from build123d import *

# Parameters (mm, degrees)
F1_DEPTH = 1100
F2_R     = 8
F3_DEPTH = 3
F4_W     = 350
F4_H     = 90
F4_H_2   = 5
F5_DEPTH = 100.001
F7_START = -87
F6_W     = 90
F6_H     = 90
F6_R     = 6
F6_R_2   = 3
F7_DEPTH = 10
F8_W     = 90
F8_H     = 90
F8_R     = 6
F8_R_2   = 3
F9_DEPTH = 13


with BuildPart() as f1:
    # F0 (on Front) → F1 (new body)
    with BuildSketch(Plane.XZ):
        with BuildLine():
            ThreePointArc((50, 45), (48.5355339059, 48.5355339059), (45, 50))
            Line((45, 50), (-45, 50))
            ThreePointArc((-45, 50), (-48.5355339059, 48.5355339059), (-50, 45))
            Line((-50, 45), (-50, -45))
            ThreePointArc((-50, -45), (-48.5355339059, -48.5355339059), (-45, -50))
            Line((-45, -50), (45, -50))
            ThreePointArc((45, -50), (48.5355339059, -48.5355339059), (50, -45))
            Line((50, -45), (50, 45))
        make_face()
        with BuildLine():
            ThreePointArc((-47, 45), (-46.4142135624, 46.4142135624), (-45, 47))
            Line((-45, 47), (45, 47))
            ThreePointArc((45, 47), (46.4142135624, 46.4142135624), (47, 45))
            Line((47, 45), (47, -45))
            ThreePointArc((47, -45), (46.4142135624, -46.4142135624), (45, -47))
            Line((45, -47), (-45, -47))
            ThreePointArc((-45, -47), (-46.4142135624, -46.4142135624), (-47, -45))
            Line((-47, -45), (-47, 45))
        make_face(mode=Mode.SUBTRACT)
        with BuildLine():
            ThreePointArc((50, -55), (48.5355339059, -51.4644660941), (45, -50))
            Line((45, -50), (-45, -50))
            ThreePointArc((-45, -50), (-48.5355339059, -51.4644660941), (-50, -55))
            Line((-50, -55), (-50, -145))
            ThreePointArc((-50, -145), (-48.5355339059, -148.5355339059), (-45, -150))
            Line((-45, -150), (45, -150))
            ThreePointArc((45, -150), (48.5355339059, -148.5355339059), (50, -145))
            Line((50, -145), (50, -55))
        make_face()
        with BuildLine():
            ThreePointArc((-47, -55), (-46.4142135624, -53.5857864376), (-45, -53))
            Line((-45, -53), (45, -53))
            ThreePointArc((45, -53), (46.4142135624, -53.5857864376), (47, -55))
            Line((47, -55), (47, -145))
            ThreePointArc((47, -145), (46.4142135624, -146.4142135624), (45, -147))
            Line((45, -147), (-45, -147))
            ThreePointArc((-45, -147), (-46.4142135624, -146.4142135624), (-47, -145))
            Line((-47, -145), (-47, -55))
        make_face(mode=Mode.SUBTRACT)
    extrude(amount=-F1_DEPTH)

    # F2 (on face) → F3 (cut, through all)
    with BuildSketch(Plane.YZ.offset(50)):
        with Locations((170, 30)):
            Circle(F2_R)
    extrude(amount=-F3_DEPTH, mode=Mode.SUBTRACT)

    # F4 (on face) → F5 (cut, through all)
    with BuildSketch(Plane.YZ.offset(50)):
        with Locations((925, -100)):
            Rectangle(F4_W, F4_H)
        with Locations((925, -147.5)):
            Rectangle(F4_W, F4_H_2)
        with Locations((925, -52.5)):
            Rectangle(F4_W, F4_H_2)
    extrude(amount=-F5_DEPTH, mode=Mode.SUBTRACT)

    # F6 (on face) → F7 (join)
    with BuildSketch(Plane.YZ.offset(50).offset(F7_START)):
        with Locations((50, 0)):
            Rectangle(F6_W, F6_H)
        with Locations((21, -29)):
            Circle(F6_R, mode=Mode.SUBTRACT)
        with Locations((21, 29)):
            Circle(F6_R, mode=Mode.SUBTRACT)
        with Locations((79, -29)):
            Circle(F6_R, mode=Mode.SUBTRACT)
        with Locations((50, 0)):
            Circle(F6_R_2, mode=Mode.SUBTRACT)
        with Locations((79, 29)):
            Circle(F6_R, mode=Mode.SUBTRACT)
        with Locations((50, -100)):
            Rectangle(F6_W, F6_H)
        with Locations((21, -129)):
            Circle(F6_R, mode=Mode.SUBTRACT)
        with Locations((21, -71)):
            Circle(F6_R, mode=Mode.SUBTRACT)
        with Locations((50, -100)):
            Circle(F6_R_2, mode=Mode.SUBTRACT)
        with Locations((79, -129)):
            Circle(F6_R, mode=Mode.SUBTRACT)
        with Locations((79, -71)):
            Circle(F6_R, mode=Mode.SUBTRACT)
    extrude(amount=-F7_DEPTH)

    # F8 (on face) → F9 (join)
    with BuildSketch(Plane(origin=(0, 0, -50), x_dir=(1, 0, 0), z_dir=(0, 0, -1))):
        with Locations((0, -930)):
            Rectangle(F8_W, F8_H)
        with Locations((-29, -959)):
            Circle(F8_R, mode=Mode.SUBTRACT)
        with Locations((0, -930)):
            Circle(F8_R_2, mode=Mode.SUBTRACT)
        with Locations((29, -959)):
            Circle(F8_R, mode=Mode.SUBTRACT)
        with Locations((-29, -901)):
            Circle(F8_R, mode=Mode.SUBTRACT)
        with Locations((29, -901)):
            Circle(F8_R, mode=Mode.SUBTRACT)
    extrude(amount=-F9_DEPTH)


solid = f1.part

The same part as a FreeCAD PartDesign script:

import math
import FreeCAD as App
import Part
import Sketcher
Q = App.Units.Quantity

doc = App.newDocument("Part")
body = doc.addObject("PartDesign::Body", "Body")

# Sketch on XZ plane
sketch1 = body.newObject("Sketcher::SketchObject", "Sketch")
sketch1.AttachmentSupport = (doc.getObject("XZ_Plane"), [""])
sketch1.MapMode = "FlatFace"
sketch1.addGeometry(Part.ArcOfCircle(Part.Circle(App.Vector(45, 45, 0), App.Vector(0, 0, 1), 5), math.radians(0), math.radians(90)), False)
sketch1.addGeometry(Part.LineSegment(App.Vector(45, 50, 0), App.Vector(-45, 50, 0)), False)
sketch1.addGeometry(Part.ArcOfCircle(Part.Circle(App.Vector(-45, 45, 0), App.Vector(0, 0, 1), 5), math.radians(90), math.radians(180)), False)
sketch1.addGeometry(Part.LineSegment(App.Vector(-50, 45, 0), App.Vector(-50, -45, 0)), False)
sketch1.addGeometry(Part.ArcOfCircle(Part.Circle(App.Vector(-45, -45, 0), App.Vector(0, 0, 1), 5), math.radians(180), math.radians(270)), False)
sketch1.addGeometry(Part.ArcOfCircle(Part.Circle(App.Vector(-45, -55, 0), App.Vector(0, 0, 1), 5), math.radians(90), math.radians(180)), False)
sketch1.addGeometry(Part.LineSegment(App.Vector(-50, -55, 0), App.Vector(-50, -145, 0)), False)
sketch1.addGeometry(Part.ArcOfCircle(Part.Circle(App.Vector(-45, -145, 0), App.Vector(0, 0, 1), 5), math.radians(180), math.radians(270)), False)
sketch1.addGeometry(Part.LineSegment(App.Vector(-45, -150, 0), App.Vector(45, -150, 0)), False)
sketch1.addGeometry(Part.ArcOfCircle(Part.Circle(App.Vector(45, -145, 0), App.Vector(0, 0, 1), 5), math.radians(-90), math.radians(0)), False)
sketch1.addGeometry(Part.LineSegment(App.Vector(50, -145, 0), App.Vector(50, -55, 0)), False)
sketch1.addGeometry(Part.ArcOfCircle(Part.Circle(App.Vector(45, -55, 0), App.Vector(0, 0, 1), 5), math.radians(0), math.radians(90)), False)
sketch1.addGeometry(Part.ArcOfCircle(Part.Circle(App.Vector(45, -45, 0), App.Vector(0, 0, 1), 5), math.radians(-90), math.radians(0)), False)
sketch1.addGeometry(Part.LineSegment(App.Vector(50, -45, 0), App.Vector(50, 45, 0)), False)
sketch1.addGeometry(Part.LineSegment(App.Vector(-47, -145, 0), App.Vector(-47, -55, 0)), False)
sketch1.addGeometry(Part.ArcOfCircle(Part.Circle(App.Vector(-45, -55, 0), App.Vector(0, 0, 1), 2), math.radians(90), math.radians(180)), False)
sketch1.addGeometry(Part.LineSegment(App.Vector(-45, -53, 0), App.Vector(45, -53, 0)), False)
sketch1.addGeometry(Part.ArcOfCircle(Part.Circle(App.Vector(45, -55, 0), App.Vector(0, 0, 1), 2), math.radians(0), math.radians(90)), False)
sketch1.addGeometry(Part.LineSegment(App.Vector(47, -55, 0), App.Vector(47, -145, 0)), False)
sketch1.addGeometry(Part.ArcOfCircle(Part.Circle(App.Vector(45, -145, 0), App.Vector(0, 0, 1), 2), math.radians(-90), math.radians(0)), False)
sketch1.addGeometry(Part.LineSegment(App.Vector(45, -147, 0), App.Vector(-45, -147, 0)), False)
sketch1.addGeometry(Part.ArcOfCircle(Part.Circle(App.Vector(-45, -145, 0), App.Vector(0, 0, 1), 2), math.radians(180), math.radians(270)), False)
sketch1.addGeometry(Part.LineSegment(App.Vector(-47, -45, 0), App.Vector(-47, 45, 0)), False)
sketch1.addGeometry(Part.ArcOfCircle(Part.Circle(App.Vector(-45, 45, 0), App.Vector(0, 0, 1), 2), math.radians(90), math.radians(180)), False)
sketch1.addGeometry(Part.LineSegment(App.Vector(-45, 47, 0), App.Vector(45, 47, 0)), False)
sketch1.addGeometry(Part.ArcOfCircle(Part.Circle(App.Vector(45, 45, 0), App.Vector(0, 0, 1), 2), math.radians(0), math.radians(90)), False)
sketch1.addGeometry(Part.LineSegment(App.Vector(47, 45, 0), App.Vector(47, -45, 0)), False)
sketch1.addGeometry(Part.ArcOfCircle(Part.Circle(App.Vector(45, -45, 0), App.Vector(0, 0, 1), 2), math.radians(-90), math.radians(0)), False)
sketch1.addGeometry(Part.LineSegment(App.Vector(45, -47, 0), App.Vector(-45, -47, 0)), False)
sketch1.addGeometry(Part.ArcOfCircle(Part.Circle(App.Vector(-45, -45, 0), App.Vector(0, 0, 1), 2), math.radians(180), math.radians(270)), False)
sketch1.addConstraint(Sketcher.Constraint("Tangent", 0, 2, 1, 1))
sketch1.addConstraint(Sketcher.Constraint("Tangent", 1, 2, 2, 1))
sketch1.addConstraint(Sketcher.Constraint("Tangent", 2, 2, 3, 1))
sketch1.addConstraint(Sketcher.Constraint("Tangent", 3, 2, 4, 1))
sketch1.addConstraint(Sketcher.Constraint("Tangent", 4, 2, 5, 1))
sketch1.addConstraint(Sketcher.Constraint("Tangent", 5, 2, 6, 1))
sketch1.addConstraint(Sketcher.Constraint("Tangent", 6, 2, 7, 1))
sketch1.addConstraint(Sketcher.Constraint("Tangent", 7, 2, 8, 1))
sketch1.addConstraint(Sketcher.Constraint("Tangent", 8, 2, 9, 1))
sketch1.addConstraint(Sketcher.Constraint("Tangent", 9, 2, 10, 1))
sketch1.addConstraint(Sketcher.Constraint("Tangent", 10, 2, 11, 1))
sketch1.addConstraint(Sketcher.Constraint("Tangent", 11, 2, 12, 1))
sketch1.addConstraint(Sketcher.Constraint("Tangent", 12, 2, 13, 1))
sketch1.addConstraint(Sketcher.Constraint("Tangent", 13, 2, 0, 1))
sketch1.addConstraint(Sketcher.Constraint("Tangent", 14, 2, 15, 2))
sketch1.addConstraint(Sketcher.Constraint("Tangent", 15, 1, 16, 1))
sketch1.addConstraint(Sketcher.Constraint("Tangent", 16, 2, 17, 2))
sketch1.addConstraint(Sketcher.Constraint("Tangent", 17, 1, 18, 1))
sketch1.addConstraint(Sketcher.Constraint("Tangent", 18, 2, 19, 2))
sketch1.addConstraint(Sketcher.Constraint("Tangent", 19, 1, 20, 1))
sketch1.addConstraint(Sketcher.Constraint("Tangent", 20, 2, 21, 2))
sketch1.addConstraint(Sketcher.Constraint("Tangent", 21, 1, 14, 1))
sketch1.addConstraint(Sketcher.Constraint("Tangent", 22, 2, 23, 2))
sketch1.addConstraint(Sketcher.Constraint("Tangent", 23, 1, 24, 1))
sketch1.addConstraint(Sketcher.Constraint("Tangent", 24, 2, 25, 2))
sketch1.addConstraint(Sketcher.Constraint("Tangent", 25, 1, 26, 1))
sketch1.addConstraint(Sketcher.Constraint("Tangent", 26, 2, 27, 2))
sketch1.addConstraint(Sketcher.Constraint("Tangent", 27, 1, 28, 1))
sketch1.addConstraint(Sketcher.Constraint("Tangent", 28, 2, 29, 2))
sketch1.addConstraint(Sketcher.Constraint("Tangent", 29, 1, 22, 1))
sketch1.addConstraint(Sketcher.Constraint("Horizontal", 1))
sketch1.addConstraint(Sketcher.Constraint("Vertical", 3))
sketch1.addConstraint(Sketcher.Constraint("Vertical", 6))
sketch1.addConstraint(Sketcher.Constraint("Horizontal", 8))
sketch1.addConstraint(Sketcher.Constraint("Vertical", 10))
sketch1.addConstraint(Sketcher.Constraint("Vertical", 13))
sketch1.addConstraint(Sketcher.Constraint("Vertical", 14))
sketch1.addConstraint(Sketcher.Constraint("Horizontal", 16))
sketch1.addConstraint(Sketcher.Constraint("Vertical", 18))
sketch1.addConstraint(Sketcher.Constraint("Horizontal", 20))
sketch1.addConstraint(Sketcher.Constraint("Vertical", 22))
sketch1.addConstraint(Sketcher.Constraint("Horizontal", 24))
sketch1.addConstraint(Sketcher.Constraint("Vertical", 26))
sketch1.addConstraint(Sketcher.Constraint("Horizontal", 28))
sketch1.addConstraint(Sketcher.Constraint("Coincident", 15, 3, 5, 3))
sketch1.addConstraint(Sketcher.Constraint("Coincident", 17, 3, 11, 3))
sketch1.addConstraint(Sketcher.Constraint("Coincident", 19, 3, 9, 3))
sketch1.addConstraint(Sketcher.Constraint("Coincident", 21, 3, 7, 3))
sketch1.addConstraint(Sketcher.Constraint("Coincident", 23, 3, 2, 3))
sketch1.addConstraint(Sketcher.Constraint("Coincident", 25, 3, 0, 3))
sketch1.addConstraint(Sketcher.Constraint("Coincident", 27, 3, 12, 3))
sketch1.addConstraint(Sketcher.Constraint("Equal", 0, 2))
sketch1.addConstraint(Sketcher.Constraint("Equal", 2, 4))
sketch1.addConstraint(Sketcher.Constraint("Equal", 4, 5))
sketch1.addConstraint(Sketcher.Constraint("Equal", 5, 7))
sketch1.addConstraint(Sketcher.Constraint("Equal", 7, 9))
sketch1.addConstraint(Sketcher.Constraint("Equal", 9, 11))
sketch1.addConstraint(Sketcher.Constraint("Equal", 11, 12))
sketch1.addConstraint(Sketcher.Constraint("Equal", 21, 23))
sketch1.addConstraint(Sketcher.Constraint("Equal", 27, 29))
sketch1.addConstraint(Sketcher.Constraint("Symmetric", 0, 3, 4, 3, -1, 1))
sketch1.addConstraint(Sketcher.Constraint("Vertical", 4, 3, 5, 3))
sketch1.addConstraint(Sketcher.Constraint("Vertical", 0, 3, 9, 3))
sketch1.addConstraint(Sketcher.Constraint("Equal", 28, 3))
sketch1.addConstraint(Sketcher.Constraint("Equal", 3, 6))
sketch1.addConstraint(Sketcher.Constraint("Radius", 0, Q("5 mm")))
sketch1.addConstraint(Sketcher.Constraint("Radius", 15, Q("2 mm")))
sketch1.addConstraint(Sketcher.Constraint("DistanceX", 1, 2, 1, 1, Q("90 mm")))
pad1 = body.newObject("PartDesign::Pad", "Pad")
pad1.Profile = sketch1
pad1.Length = 1100
pad1.Reversed = True

# Sketch on YZ plane
sketch2 = body.newObject("Sketcher::SketchObject", "Sketch001")
sketch2.AttachmentSupport = (doc.getObject("YZ_Plane"), [""])
sketch2.MapMode = "FlatFace"
sketch2.AttachmentOffset = App.Placement(App.Vector(0, 0, 50), App.Rotation())
sketch2.addGeometry(Part.Circle(App.Vector(170, 30, 0), App.Vector(0, 0, 1), 8), False)
sketch2.addConstraint(Sketcher.Constraint("Diameter", 0, Q("16 mm")))
sketch2.addConstraint(Sketcher.Constraint("DistanceX", -1, 1, 0, 3, Q("170 mm")))
sketch2.addConstraint(Sketcher.Constraint("DistanceY", -1, 1, 0, 3, Q("30 mm")))
pocket1 = body.newObject("PartDesign::Pocket", "Pocket")
pocket1.Profile = sketch2
pocket1.Length = 3

# Sketch on YZ plane
sketch3 = body.newObject("Sketcher::SketchObject", "Sketch002")
sketch3.AttachmentSupport = (doc.getObject("YZ_Plane"), [""])
sketch3.MapMode = "FlatFace"
sketch3.AttachmentOffset = App.Placement(App.Vector(0, 0, 50), App.Rotation())
sketch3.addGeometry(Part.LineSegment(App.Vector(750, -150, 0), App.Vector(1100, -150, 0)), False)
sketch3.addGeometry(Part.LineSegment(App.Vector(1100, -150, 0), App.Vector(1100, -50, 0)), False)
sketch3.addGeometry(Part.LineSegment(App.Vector(1100, -50, 0), App.Vector(750, -50, 0)), False)
sketch3.addGeometry(Part.LineSegment(App.Vector(750, -50, 0), App.Vector(750, -150, 0)), False)
sketch3.addConstraint(Sketcher.Constraint("Coincident", 0, 2, 1, 1))
sketch3.addConstraint(Sketcher.Constraint("Coincident", 1, 2, 2, 1))
sketch3.addConstraint(Sketcher.Constraint("Coincident", 2, 2, 3, 1))
sketch3.addConstraint(Sketcher.Constraint("Coincident", 3, 2, 0, 1))
sketch3.addConstraint(Sketcher.Constraint("Horizontal", 0))
sketch3.addConstraint(Sketcher.Constraint("Vertical", 1))
sketch3.addConstraint(Sketcher.Constraint("Horizontal", 2))
sketch3.addConstraint(Sketcher.Constraint("Vertical", 3))
sketch3.addConstraint(Sketcher.Constraint("DistanceX", 0, 1, 0, 2, Q("350 mm")))
sketch3.addConstraint(Sketcher.Constraint("DistanceY", 1, 1, 1, 2, Q("100 mm")))
sketch3.addConstraint(Sketcher.Constraint("DistanceX", -1, 1, 0, 2, Q("1100 mm")))
sketch3.addConstraint(Sketcher.Constraint("DistanceY", 0, 2, -1, 1, Q("150 mm")))
pocket2 = body.newObject("PartDesign::Pocket", "Pocket001")
pocket2.Profile = sketch3
pocket2.Type = "ThroughAll"

# Sketch on YZ plane
sketch4 = body.newObject("Sketcher::SketchObject", "Sketch003")
sketch4.AttachmentSupport = (doc.getObject("YZ_Plane"), [""])
sketch4.MapMode = "FlatFace"
sketch4.AttachmentOffset = App.Placement(App.Vector(0, 0, -37), App.Rotation())
sketch4.addGeometry(Part.LineSegment(App.Vector(5, 45, 0), App.Vector(5, -45, 0)), False)
sketch4.addGeometry(Part.LineSegment(App.Vector(5, -45, 0), App.Vector(95, -45, 0)), False)
sketch4.addGeometry(Part.LineSegment(App.Vector(95, -45, 0), App.Vector(95, 45, 0)), False)
sketch4.addGeometry(Part.LineSegment(App.Vector(95, 45, 0), App.Vector(5, 45, 0)), False)
sketch4.addGeometry(Part.Circle(App.Vector(21, -29, 0), App.Vector(0, 0, 1), 6), False)
sketch4.addGeometry(Part.Circle(App.Vector(79, -29, 0), App.Vector(0, 0, 1), 6), False)
sketch4.addGeometry(Part.Circle(App.Vector(21, 29, 0), App.Vector(0, 0, 1), 6), False)
sketch4.addGeometry(Part.Circle(App.Vector(50, 0, 0), App.Vector(0, 0, 1), 3), False)
sketch4.addGeometry(Part.Circle(App.Vector(79, 29, 0), App.Vector(0, 0, 1), 6), False)
sketch4.addGeometry(Part.LineSegment(App.Vector(5, -55, 0), App.Vector(5, -145, 0)), False)
sketch4.addGeometry(Part.LineSegment(App.Vector(5, -145, 0), App.Vector(95, -145, 0)), False)
sketch4.addGeometry(Part.LineSegment(App.Vector(95, -145, 0), App.Vector(95, -55, 0)), False)
sketch4.addGeometry(Part.LineSegment(App.Vector(95, -55, 0), App.Vector(5, -55, 0)), False)
sketch4.addGeometry(Part.Circle(App.Vector(21, -129, 0), App.Vector(0, 0, 1), 6), False)
sketch4.addGeometry(Part.Circle(App.Vector(79, -129, 0), App.Vector(0, 0, 1), 6), False)
sketch4.addGeometry(Part.Circle(App.Vector(21, -71, 0), App.Vector(0, 0, 1), 6), False)
sketch4.addGeometry(Part.Circle(App.Vector(50, -100, 0), App.Vector(0, 0, 1), 3), False)
sketch4.addGeometry(Part.Circle(App.Vector(79, -71, 0), App.Vector(0, 0, 1), 6), False)
sketch4.addConstraint(Sketcher.Constraint("Coincident", 0, 2, 1, 1))
sketch4.addConstraint(Sketcher.Constraint("Coincident", 1, 2, 2, 1))
sketch4.addConstraint(Sketcher.Constraint("Coincident", 2, 2, 3, 1))
sketch4.addConstraint(Sketcher.Constraint("Coincident", 3, 2, 0, 1))
sketch4.addConstraint(Sketcher.Constraint("Coincident", 9, 2, 10, 1))
sketch4.addConstraint(Sketcher.Constraint("Coincident", 10, 2, 11, 1))
sketch4.addConstraint(Sketcher.Constraint("Coincident", 11, 2, 12, 1))
sketch4.addConstraint(Sketcher.Constraint("Coincident", 12, 2, 9, 1))
sketch4.addConstraint(Sketcher.Constraint("Vertical", 0))
sketch4.addConstraint(Sketcher.Constraint("Horizontal", 1))
sketch4.addConstraint(Sketcher.Constraint("Vertical", 2))
sketch4.addConstraint(Sketcher.Constraint("Horizontal", 3))
sketch4.addConstraint(Sketcher.Constraint("Vertical", 9))
sketch4.addConstraint(Sketcher.Constraint("Horizontal", 10))
sketch4.addConstraint(Sketcher.Constraint("Vertical", 11))
sketch4.addConstraint(Sketcher.Constraint("Horizontal", 12))
sketch4.addConstraint(Sketcher.Constraint("Equal", 4, 5))
sketch4.addConstraint(Sketcher.Constraint("Equal", 5, 6))
sketch4.addConstraint(Sketcher.Constraint("Equal", 6, 8))
sketch4.addConstraint(Sketcher.Constraint("Equal", 8, 13))
sketch4.addConstraint(Sketcher.Constraint("Equal", 13, 14))
sketch4.addConstraint(Sketcher.Constraint("Equal", 14, 15))
sketch4.addConstraint(Sketcher.Constraint("Equal", 7, 16))
sketch4.addConstraint(Sketcher.Constraint("Equal", 15, 17))
sketch4.addConstraint(Sketcher.Constraint("Symmetric", 4, 3, 6, 3, -1))
sketch4.addConstraint(Sketcher.Constraint("Symmetric", 5, 3, 8, 3, -1))
sketch4.addConstraint(Sketcher.Constraint("PointOnObject", 7, 3, -1))
sketch4.addConstraint(Sketcher.Constraint("Horizontal", 4, 3, 5, 3))
sketch4.addConstraint(Sketcher.Constraint("Horizontal", 13, 3, 14, 3))
sketch4.addConstraint(Sketcher.Constraint("Horizontal", 15, 3, 17, 3))
sketch4.addConstraint(Sketcher.Constraint("Vertical", 6, 3, 13, 3))
sketch4.addConstraint(Sketcher.Constraint("Vertical", 8, 3, 14, 3))
sketch4.addConstraint(Sketcher.Constraint("Vertical", 13, 3, 15, 3))
sketch4.addConstraint(Sketcher.Constraint("Vertical", 7, 3, 16, 3))
sketch4.addConstraint(Sketcher.Constraint("Vertical", 14, 3, 17, 3))
sketch4.addConstraint(Sketcher.Constraint("Vertical", 3, 2, 9, 2))
sketch4.addConstraint(Sketcher.Constraint("Vertical", 2, 2, 10, 2))
sketch4.addConstraint(Sketcher.Constraint("Equal", 12, 0))
sketch4.addConstraint(Sketcher.Constraint("Equal", 2, 9))
sketch4.addConstraint(Sketcher.Constraint("Diameter", 4, Q("12 mm")))
sketch4.addConstraint(Sketcher.Constraint("Diameter", 7, Q("6 mm")))
sketch4.addConstraint(Sketcher.Constraint("DistanceX", 1, 1, 1, 2, Q("90 mm")))
sketch4.addConstraint(Sketcher.Constraint("DistanceX", -1, 1, 4, 3, Q("21 mm")))
sketch4.addConstraint(Sketcher.Constraint("DistanceY", 4, 3, -1, 1, Q("29 mm")))
sketch4.addConstraint(Sketcher.Constraint("DistanceX", -1, 1, 5, 3, Q("79 mm")))
sketch4.addConstraint(Sketcher.Constraint("DistanceX", -1, 1, 7, 3, Q("50 mm")))
sketch4.addConstraint(Sketcher.Constraint("DistanceY", 13, 3, -1, 1, Q("129 mm")))
sketch4.addConstraint(Sketcher.Constraint("DistanceY", 15, 3, -1, 1, Q("71 mm")))
sketch4.addConstraint(Sketcher.Constraint("DistanceY", 16, 3, -1, 1, Q("100 mm")))
sketch4.addConstraint(Sketcher.Constraint("DistanceX", -1, 1, 0, 2, Q("5 mm")))
sketch4.addConstraint(Sketcher.Constraint("DistanceY", 0, 2, -1, 1, Q("45 mm")))
sketch4.addConstraint(Sketcher.Constraint("DistanceY", 9, 2, -1, 1, Q("145 mm")))
pad2 = body.newObject("PartDesign::Pad", "Pad001")
pad2.Profile = sketch4
pad2.Length = 10
pad2.Reversed = True

# Sketch on XY plane
sketch5 = body.newObject("Sketcher::SketchObject", "Sketch004")
sketch5.AttachmentSupport = (doc.getObject("XY_Plane"), [""])
sketch5.MapMode = "FlatFace"
sketch5.AttachmentOffset = App.Placement(App.Vector(0, 0, -50), App.Rotation())
sketch5.addGeometry(Part.LineSegment(App.Vector(-45, 885, 0), App.Vector(-45, 975, 0)), False)
sketch5.addGeometry(Part.LineSegment(App.Vector(-45, 975, 0), App.Vector(45, 975, 0)), False)
sketch5.addGeometry(Part.LineSegment(App.Vector(45, 975, 0), App.Vector(45, 885, 0)), False)
sketch5.addGeometry(Part.LineSegment(App.Vector(45, 885, 0), App.Vector(-45, 885, 0)), False)
sketch5.addGeometry(Part.Circle(App.Vector(-29, 959, 0), App.Vector(0, 0, 1), 6), False)
sketch5.addGeometry(Part.Circle(App.Vector(29, 959, 0), App.Vector(0, 0, 1), 6), False)
sketch5.addGeometry(Part.Circle(App.Vector(-29, 901, 0), App.Vector(0, 0, 1), 6), False)
sketch5.addGeometry(Part.Circle(App.Vector(0, 930, 0), App.Vector(0, 0, 1), 3), False)
sketch5.addGeometry(Part.Circle(App.Vector(29, 901, 0), App.Vector(0, 0, 1), 6), False)
sketch5.addConstraint(Sketcher.Constraint("Coincident", 0, 2, 1, 1))
sketch5.addConstraint(Sketcher.Constraint("Coincident", 1, 2, 2, 1))
sketch5.addConstraint(Sketcher.Constraint("Coincident", 2, 2, 3, 1))
sketch5.addConstraint(Sketcher.Constraint("Coincident", 3, 2, 0, 1))
sketch5.addConstraint(Sketcher.Constraint("Vertical", 0))
sketch5.addConstraint(Sketcher.Constraint("Horizontal", 1))
sketch5.addConstraint(Sketcher.Constraint("Vertical", 2))
sketch5.addConstraint(Sketcher.Constraint("Horizontal", 3))
sketch5.addConstraint(Sketcher.Constraint("Equal", 4, 5))
sketch5.addConstraint(Sketcher.Constraint("Equal", 5, 6))
sketch5.addConstraint(Sketcher.Constraint("Equal", 6, 8))
sketch5.addConstraint(Sketcher.Constraint("Symmetric", 4, 3, 5, 3, -2))
sketch5.addConstraint(Sketcher.Constraint("Symmetric", 6, 3, 8, 3, -2))
sketch5.addConstraint(Sketcher.Constraint("PointOnObject", 7, 3, -2))
sketch5.addConstraint(Sketcher.Constraint("Vertical", 4, 3, 6, 3))
sketch5.addConstraint(Sketcher.Constraint("Equal", 3, 0))
sketch5.addConstraint(Sketcher.Constraint("Diameter", 4, Q("12 mm")))
sketch5.addConstraint(Sketcher.Constraint("Diameter", 7, Q("6 mm")))
sketch5.addConstraint(Sketcher.Constraint("DistanceX", 1, 1, 1, 2, Q("90 mm")))
sketch5.addConstraint(Sketcher.Constraint("DistanceX", 4, 3, -1, 1, Q("29 mm")))
sketch5.addConstraint(Sketcher.Constraint("DistanceY", -1, 1, 4, 3, Q("959 mm")))
sketch5.addConstraint(Sketcher.Constraint("DistanceY", -1, 1, 6, 3, Q("901 mm")))
sketch5.addConstraint(Sketcher.Constraint("DistanceY", -1, 1, 7, 3, Q("930 mm")))
sketch5.addConstraint(Sketcher.Constraint("DistanceX", 0, 2, -1, 1, Q("45 mm")))
sketch5.addConstraint(Sketcher.Constraint("DistanceY", -1, 1, 0, 2, Q("975 mm")))
pad3 = body.newObject("PartDesign::Pad", "Pad002")
pad3.Profile = sketch5
pad3.Length = 13

doc.recompute()
